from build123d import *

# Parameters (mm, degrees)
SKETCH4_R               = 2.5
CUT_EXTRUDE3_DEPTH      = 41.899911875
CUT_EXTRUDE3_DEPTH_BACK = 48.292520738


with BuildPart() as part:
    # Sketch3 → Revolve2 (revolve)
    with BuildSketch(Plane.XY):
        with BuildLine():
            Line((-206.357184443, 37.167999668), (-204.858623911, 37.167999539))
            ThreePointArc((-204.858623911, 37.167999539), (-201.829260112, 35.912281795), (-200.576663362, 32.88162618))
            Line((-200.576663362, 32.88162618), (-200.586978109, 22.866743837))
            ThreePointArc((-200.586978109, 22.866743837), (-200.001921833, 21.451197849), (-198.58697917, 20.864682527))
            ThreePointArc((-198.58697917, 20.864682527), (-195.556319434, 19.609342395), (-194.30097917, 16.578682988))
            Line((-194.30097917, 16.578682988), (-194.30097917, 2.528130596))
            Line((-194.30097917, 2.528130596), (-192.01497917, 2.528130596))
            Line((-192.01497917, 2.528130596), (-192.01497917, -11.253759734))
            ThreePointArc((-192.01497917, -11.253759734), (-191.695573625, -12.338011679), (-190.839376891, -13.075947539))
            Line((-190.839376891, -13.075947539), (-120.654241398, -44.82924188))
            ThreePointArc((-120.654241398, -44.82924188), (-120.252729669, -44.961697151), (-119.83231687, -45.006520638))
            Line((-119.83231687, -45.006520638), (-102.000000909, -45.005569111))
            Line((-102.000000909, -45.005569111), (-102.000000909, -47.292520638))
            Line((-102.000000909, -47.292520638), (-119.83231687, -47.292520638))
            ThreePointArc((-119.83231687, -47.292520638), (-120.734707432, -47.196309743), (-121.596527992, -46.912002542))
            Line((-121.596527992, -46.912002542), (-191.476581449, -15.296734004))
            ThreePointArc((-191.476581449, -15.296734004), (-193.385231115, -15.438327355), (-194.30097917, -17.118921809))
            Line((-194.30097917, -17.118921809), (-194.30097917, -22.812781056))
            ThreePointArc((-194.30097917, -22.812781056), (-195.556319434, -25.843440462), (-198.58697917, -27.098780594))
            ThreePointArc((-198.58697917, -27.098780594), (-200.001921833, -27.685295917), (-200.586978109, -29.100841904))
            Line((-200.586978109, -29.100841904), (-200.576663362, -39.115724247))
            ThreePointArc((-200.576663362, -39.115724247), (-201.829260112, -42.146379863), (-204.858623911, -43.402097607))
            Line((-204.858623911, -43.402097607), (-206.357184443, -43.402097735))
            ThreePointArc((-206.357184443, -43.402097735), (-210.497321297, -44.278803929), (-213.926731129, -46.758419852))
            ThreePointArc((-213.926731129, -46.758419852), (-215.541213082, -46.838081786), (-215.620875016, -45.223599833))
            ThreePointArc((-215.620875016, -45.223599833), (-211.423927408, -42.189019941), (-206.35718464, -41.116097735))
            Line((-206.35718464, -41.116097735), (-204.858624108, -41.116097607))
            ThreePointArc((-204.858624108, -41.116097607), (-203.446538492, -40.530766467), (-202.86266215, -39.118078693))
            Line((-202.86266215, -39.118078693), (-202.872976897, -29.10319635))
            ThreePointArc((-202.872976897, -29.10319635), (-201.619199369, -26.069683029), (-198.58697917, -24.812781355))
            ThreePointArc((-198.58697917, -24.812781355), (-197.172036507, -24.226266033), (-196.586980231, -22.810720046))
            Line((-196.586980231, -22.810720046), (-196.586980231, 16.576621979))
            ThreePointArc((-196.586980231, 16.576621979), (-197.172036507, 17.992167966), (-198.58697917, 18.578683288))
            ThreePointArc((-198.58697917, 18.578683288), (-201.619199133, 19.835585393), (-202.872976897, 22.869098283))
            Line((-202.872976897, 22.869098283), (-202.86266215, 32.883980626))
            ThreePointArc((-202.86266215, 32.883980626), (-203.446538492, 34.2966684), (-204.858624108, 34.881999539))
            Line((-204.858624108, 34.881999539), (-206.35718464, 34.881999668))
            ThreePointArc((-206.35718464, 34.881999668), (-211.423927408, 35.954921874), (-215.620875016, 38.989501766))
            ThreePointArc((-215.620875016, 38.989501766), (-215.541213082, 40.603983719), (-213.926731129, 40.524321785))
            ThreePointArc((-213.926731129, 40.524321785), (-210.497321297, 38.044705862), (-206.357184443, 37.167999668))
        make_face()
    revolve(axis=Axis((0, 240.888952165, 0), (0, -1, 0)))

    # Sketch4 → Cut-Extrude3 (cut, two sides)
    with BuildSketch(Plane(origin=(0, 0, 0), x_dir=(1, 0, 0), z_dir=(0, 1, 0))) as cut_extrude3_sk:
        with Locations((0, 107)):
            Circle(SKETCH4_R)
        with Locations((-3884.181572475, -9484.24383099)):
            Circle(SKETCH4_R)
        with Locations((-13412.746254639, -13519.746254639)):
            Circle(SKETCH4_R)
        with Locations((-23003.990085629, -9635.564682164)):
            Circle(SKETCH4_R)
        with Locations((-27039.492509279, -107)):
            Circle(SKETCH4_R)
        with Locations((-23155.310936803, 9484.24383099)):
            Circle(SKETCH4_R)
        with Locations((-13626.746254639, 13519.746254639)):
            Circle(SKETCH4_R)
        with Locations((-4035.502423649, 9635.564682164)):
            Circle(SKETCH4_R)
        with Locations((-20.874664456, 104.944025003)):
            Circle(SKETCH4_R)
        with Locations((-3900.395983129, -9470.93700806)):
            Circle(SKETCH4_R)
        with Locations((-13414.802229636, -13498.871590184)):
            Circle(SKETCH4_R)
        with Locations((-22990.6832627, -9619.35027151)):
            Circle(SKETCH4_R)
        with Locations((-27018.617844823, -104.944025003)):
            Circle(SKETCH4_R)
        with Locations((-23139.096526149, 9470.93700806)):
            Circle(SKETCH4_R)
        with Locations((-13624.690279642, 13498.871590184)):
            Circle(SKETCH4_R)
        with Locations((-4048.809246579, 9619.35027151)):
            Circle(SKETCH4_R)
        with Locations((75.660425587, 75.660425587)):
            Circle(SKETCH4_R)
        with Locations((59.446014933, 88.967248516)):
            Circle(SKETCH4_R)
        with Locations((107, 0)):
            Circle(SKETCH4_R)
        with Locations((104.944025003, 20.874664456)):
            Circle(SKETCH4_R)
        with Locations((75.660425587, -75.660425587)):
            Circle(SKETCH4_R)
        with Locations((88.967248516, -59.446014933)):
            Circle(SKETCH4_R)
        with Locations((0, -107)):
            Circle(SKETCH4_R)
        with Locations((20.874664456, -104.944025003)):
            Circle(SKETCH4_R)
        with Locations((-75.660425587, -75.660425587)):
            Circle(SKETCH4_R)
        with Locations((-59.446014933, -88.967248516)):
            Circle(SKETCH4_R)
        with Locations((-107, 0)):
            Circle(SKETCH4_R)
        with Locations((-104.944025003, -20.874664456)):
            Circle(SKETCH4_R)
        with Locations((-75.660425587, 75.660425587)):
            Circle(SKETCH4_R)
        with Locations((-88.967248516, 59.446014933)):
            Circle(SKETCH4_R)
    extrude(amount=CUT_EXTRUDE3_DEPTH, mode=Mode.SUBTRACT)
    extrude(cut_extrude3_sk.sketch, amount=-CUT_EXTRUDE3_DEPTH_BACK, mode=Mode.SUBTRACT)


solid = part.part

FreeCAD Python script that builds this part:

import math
import FreeCAD as App
import Part
import Sketcher

doc = App.newDocument("Part")
params = doc.addObject("Spreadsheet::Sheet", "Params")
for row, (alias, value) in enumerate([
    ("sketch1_radius", "1.999999 mm"),
    ("sketch1_radius2", "1.999999 mm"),
    ("sketch1_radius3", "1.999999 mm"),
    ("sketch1_radius4", "2 mm"),
    ("sketch1_radius5", "2 mm"),
    ("revolution_angle", "360 deg"),
    ("sketch2_diameter", "5 mm"),
], start=1):
    params.set(f"A{row}", alias)
    params.set(f"B{row}", "=" + value)
    params.setAlias(f"B{row}", alias)

body = doc.addObject("PartDesign::Body", "Body")

# Sketch on XY plane
sketch1 = body.newObject("Sketcher::SketchObject", "Sketch")
sketch1.AttachmentSupport = (doc.getObject("XY_Plane"), [""])
sketch1.MapMode = "FlatFace"
sketch1.addGeometry(Part.LineSegment(App.Vector(-204.858624, 37.168, 0), App.Vector(-206.357184, 37.168, 0)), False)
sketch1.addGeometry(Part.ArcOfCircle(Part.Circle(App.Vector(-206.357184, 47.382, 0), App.Vector(0, 0, 1), 10.214), math.radians(-137.824803), math.radians(-90.000005)), False)
sketch1.addGeometry(Part.ArcOfCircle(Part.Circle(App.Vector(-214.773803, 39.756912, 0), App.Vector(0, 0, 1), 1.143), math.radians(42.175197), math.radians(222.175197)), False)
sketch1.addGeometry(Part.ArcOfCircle(Part.Circle(App.Vector(-206.357184, 47.382, 0), App.Vector(0, 0, 1), 12.5), math.radians(-137.824803), math.radians(-90.000005)), False)
sketch1.addGeometry(Part.LineSegment(App.Vector(-206.357185, 34.882, 0), App.Vector(-204.858624, 34.882, 0)), False)
sketch1.addGeometry(Part.ArcOfCircle(Part.Circle(App.Vector(-204.858624, 32.886036, 0), App.Vector(0, 0, 1), 1.995963), math.radians(-0.059011), math.radians(89.999995)), False)
sketch1.addGeometry(Part.LineSegment(App.Vector(-202.862662, 32.883981, 0), App.Vector(-202.872977, 22.869098, 0)), False)
sketch1.addGeometry(Part.ArcOfCircle(Part.Circle(App.Vector(-198.586978, 22.864684, 0), App.Vector(0, 0, 1), 4.286001), math.radians(179.940995), math.radians(269.999985)), False)
sketch1.addGeometry(Part.ArcOfCircle(Part.Circle(App.Vector(-198.586978, 16.578684, 0), App.Vector(0, 0, 1), 1.999999), math.radians(-0.059081), math.radians(90.000029)), False)
sketch1.addGeometry(Part.LineSegment(App.Vector(-196.58698, 16.576622, 0), App.Vector(-196.58698, -22.81072, 0)), False)
sketch1.addGeometry(Part.ArcOfCircle(Part.Circle(App.Vector(-198.586978, -22.812782, 0), App.Vector(0, 0, 1), 1.999999), math.radians(-90.000029), math.radians(0.059081)), False)
sketch1.addGeometry(Part.ArcOfCircle(Part.Circle(App.Vector(-198.586979, -29.098781, 0), App.Vector(0, 0, 1), 4.286), math.radians(90), math.radians(180.05902)), False)
sketch1.addGeometry(Part.LineSegment(App.Vector(-202.872977, -29.103196, 0), App.Vector(-202.862662, -39.118079, 0)), False)
sketch1.addGeometry(Part.ArcOfCircle(Part.Circle(App.Vector(-204.858624, -39.120134, 0), App.Vector(0, 0, 1), 1.995963), math.radians(-89.999995), math.radians(0.059011)), False)
sketch1.addGeometry(Part.LineSegment(App.Vector(-204.858624, -41.116098, 0), App.Vector(-206.357185, -41.116098, 0)), False)
sketch1.addGeometry(Part.ArcOfCircle(Part.Circle(App.Vector(-206.357184, -53.616098, 0), App.Vector(0, 0, 1), 12.5), math.radians(90.000005), math.radians(137.824803)), False)
sketch1.addGeometry(Part.ArcOfCircle(Part.Circle(App.Vector(-214.773803, -45.99101, 0), App.Vector(0, 0, 1), 1.143), math.radians(137.824803), math.radians(317.824803)), False)
sketch1.addGeometry(Part.ArcOfCircle(Part.Circle(App.Vector(-206.357184, -53.616098, 0), App.Vector(0, 0, 1), 10.214), math.radians(90.000005), math.radians(137.824803)), False)
sketch1.addGeometry(Part.LineSegment(App.Vector(-206.357184, -43.402098, 0), App.Vector(-204.858624, -43.402098, 0)), False)
sketch1.addGeometry(Part.ArcOfCircle(Part.Circle(App.Vector(-204.858624, -39.120134, 0), App.Vector(0, 0, 1), 4.281963), math.radians(-89.999995), math.radians(0.059011)), False)
sketch1.addGeometry(Part.LineSegment(App.Vector(-200.576663, -39.115724, 0), App.Vector(-200.586978, -29.100842, 0)), False)
sketch1.addGeometry(Part.ArcOfCircle(Part.Circle(App.Vector(-198.58698, -29.09878, 0), App.Vector(0, 0, 1), 1.999999), math.radians(89.999971), math.radians(180.059081)), False)
sketch1.addGeometry(Part.ArcOfCircle(Part.Circle(App.Vector(-198.586979, -22.812781, 0), App.Vector(0, 0, 1), 4.286), math.radians(-90.000006), math.radians(0)), False)
sketch1.addGeometry(Part.LineSegment(App.Vector(-194.300979, -22.812781, 0), App.Vector(-194.300979, -17.118922, 0)), False)
sketch1.addGeometry(Part.ArcOfCircle(Part.Circle(App.Vector(-192.300979, -17.118922, 0), App.Vector(0, 0, 1), 2), math.radians(65.656961), math.radians(180)), False)
sketch1.addGeometry(Part.LineSegment(App.Vector(-191.476581, -15.296734, 0), App.Vector(-121.596528, -46.912003, 0)), False)
sketch1.addGeometry(Part.ArcOfCircle(Part.Circle(App.Vector(-119.832317, -43.012521, 0), App.Vector(0, 0, 1), 4.28), math.radians(-114.343039), math.radians(-90)), False)
sketch1.addGeometry(Part.LineSegment(App.Vector(-119.832317, -47.292521, 0), App.Vector(-102.000001, -47.292521, 0)), False)
sketch1.addGeometry(Part.LineSegment(App.Vector(-102.000001, -47.292521, 0), App.Vector(-102.000001, -45.005569, 0)), False)
sketch1.addGeometry(Part.LineSegment(App.Vector(-102.000001, -45.005569, 0), App.Vector(-119.832317, -45.006521, 0)), False)
sketch1.addGeometry(Part.ArcOfCircle(Part.Circle(App.Vector(-119.832317, -43.012521, 0), App.Vector(0, 0, 1), 1.994), math.radians(-114.343039), math.radians(-90)), False)
sketch1.addGeometry(Part.LineSegment(App.Vector(-120.654241, -44.829242, 0), App.Vector(-190.839377, -13.075948, 0)), False)
sketch1.addGeometry(Part.ArcOfCircle(Part.Circle(App.Vector(-190.014979, -11.25376, 0), App.Vector(0, 0, 1), 2), math.radians(180), math.radians(245.656961)), False)
sketch1.addGeometry(Part.LineSegment(App.Vector(-192.014979, -11.25376, 0), App.Vector(-192.014979, 2.528131, 0)), False)
sketch1.addGeometry(Part.LineSegment(App.Vector(-192.014979, 2.528131, 0), App.Vector(-194.300979, 2.528131, 0)), False)
sketch1.addGeometry(Part.LineSegment(App.Vector(-194.300979, 2.528131, 0), App.Vector(-194.300979, 16.578683, 0)), False)
sketch1.addGeometry(Part.ArcOfCircle(Part.Circle(App.Vector(-198.586979, 16.578683, 0), App.Vector(0, 0, 1), 4.286), math.radians(0), math.radians(90.000006)), False)
sketch1.addGeometry(Part.ArcOfCircle(Part.Circle(App.Vector(-198.58698, 22.864682, 0), App.Vector(0, 0, 1), 1.999999), math.radians(179.940919), math.radians(270.000029)), False)
sketch1.addGeometry(Part.LineSegment(App.Vector(-200.586978, 22.866744, 0), App.Vector(-200.576663, 32.881626, 0)), False)
sketch1.addGeometry(Part.ArcOfCircle(Part.Circle(App.Vector(-204.858624, 32.886036, 0), App.Vector(0, 0, 1), 4.281963), math.radians(-0.059011), math.radians(89.999995)), False)
sketch1.addConstraint(Sketcher.Constraint("Coincident", 0, 2, 1, 2))
sketch1.addConstraint(Sketcher.Constraint("Coincident", 1, 1, 2, 1))
sketch1.addConstraint(Sketcher.Constraint("Coincident", 2, 2, 3, 1))
sketch1.addConstraint(Sketcher.Constraint("Coincident", 3, 2, 4, 1))
sketch1.addConstraint(Sketcher.Constraint("Coincident", 4, 2, 5, 2))
sketch1.addConstraint(Sketcher.Constraint("Coincident", 5, 1, 6, 1))
sketch1.addConstraint(Sketcher.Constraint("Coincident", 6, 2, 7, 1))
sketch1.addConstraint(Sketcher.Constraint("Coincident", 7, 2, 8, 2))
sketch1.addConstraint(Sketcher.Constraint("Coincident", 8, 1, 9, 1))
sketch1.addConstraint(Sketcher.Constraint("Coincident", 9, 2, 10, 2))
sketch1.addConstraint(Sketcher.Constraint("Coincident", 10, 1, 11, 1))
sketch1.addConstraint(Sketcher.Constraint("Coincident", 11, 2, 12, 1))
sketch1.addConstraint(Sketcher.Constraint("Coincident", 12, 2, 13, 2))
sketch1.addConstraint(Sketcher.Constraint("Coincident", 13, 1, 14, 1))
sketch1.addConstraint(Sketcher.Constraint("Coincident", 14, 2, 15, 1))
sketch1.addConstraint(Sketcher.Constraint("Coincident", 15, 2, 16, 1))
sketch1.addConstraint(Sketcher.Constraint("Coincident", 16, 2, 17, 2))
sketch1.addConstraint(Sketcher.Constraint("Coincident", 17, 1, 18, 1))
sketch1.addConstraint(Sketcher.Constraint("Coincident", 18, 2, 19, 1))
sketch1.addConstraint(Sketcher.Constraint("Coincident", 19, 2, 20, 1))
sketch1.addConstraint(Sketcher.Constraint("Coincident", 20, 2, 21, 2))
sketch1.addConstraint(Sketcher.Constraint("Coincident", 21, 1, 22, 1))
sketch1.addConstraint(Sketcher.Constraint("Coincident", 22, 2, 23, 1))
sketch1.addConstraint(Sketcher.Constraint("Coincident", 23, 2, 24, 2))
sketch1.addConstraint(Sketcher.Constraint("Coincident", 24, 1, 25, 1))
sketch1.addConstraint(Sketcher.Constraint("Coincident", 25, 2, 26, 1))
sketch1.addConstraint(Sketcher.Constraint("Coincident", 26, 2, 27, 1))
sketch1.addConstraint(Sketcher.Constraint("Coincident", 27, 2, 28, 1))
sketch1.addConstraint(Sketcher.Constraint("Coincident", 28, 2, 29, 1))
sketch1.addConstraint(Sketcher.Constraint("Coincident", 29, 2, 30, 2))
sketch1.addConstraint(Sketcher.Constraint("Coincident", 30, 1, 31, 1))
sketch1.addConstraint(Sketcher.Constraint("Coincident", 31, 2, 32, 2))
sketch1.addConstraint(Sketcher.Constraint("Coincident", 32, 1, 33, 1))
sketch1.addConstraint(Sketcher.Constraint("Coincident", 33, 2, 34, 1))
sketch1.addConstraint(Sketcher.Constraint("Coincident", 34, 2, 35, 1))
sketch1.addConstraint(Sketcher.Constraint("Coincident", 35, 2, 36, 1))
sketch1.addConstraint(Sketcher.Constraint("Coincident", 36, 2, 37, 2))
sketch1.addConstraint(Sketcher.Constraint("Coincident", 37, 1, 38, 1))
sketch1.addConstraint(Sketcher.Constraint("Coincident", 38, 2, 39, 1))
sketch1.addConstraint(Sketcher.Constraint("Coincident", 39, 2, 0, 1))
sketch1.addConstraint(Sketcher.Constraint("Horizontal", 0))
sketch1.addConstraint(Sketcher.Constraint("Horizontal", 4))
sketch1.addConstraint(Sketcher.Constraint("Vertical", 9))
sketch1.addConstraint(Sketcher.Constraint("Horizontal", 14))
sketch1.addConstraint(Sketcher.Constraint("Horizontal", 18))
sketch1.addConstraint(Sketcher.Constraint("Vertical", 23))
sketch1.addConstraint(Sketcher.Constraint("Horizontal", 27))
sketch1.addConstraint(Sketcher.Constraint("Vertical", 28))
sketch1.addConstraint(Sketcher.Constraint("Vertical", 33))
sketch1.addConstraint(Sketcher.Constraint("Horizontal", 34))
sketch1.addConstraint(Sketcher.Constraint("Vertical", 35))
sketch1.addConstraint(Sketcher.Constraint("Coincident", 3, 3, 1, 3))
sketch1.addConstraint(Sketcher.Constraint("Coincident", 17, 3, 15, 3))
sketch1.addConstraint(Sketcher.Constraint("Coincident", 19, 3, 13, 3))
sketch1.addConstraint(Sketcher.Constraint("Coincident", 21, 3, 11, 3))
sketch1.addConstraint(Sketcher.Constraint("Coincident", 22, 3, 10, 3))
sketch1.addConstraint(Sketcher.Constraint("Coincident", 30, 3, 26, 3))
sketch1.addConstraint(Sketcher.Constraint("Coincident", 36, 3, 8, 3))
sketch1.addConstraint(Sketcher.Constraint("Coincident", 37, 3, 7, 3))
sketch1.addConstraint(Sketcher.Constraint("Coincident", 39, 3, 5, 3))
sketch1.addConstraint(Sketcher.Constraint("Radius", 8, 1.999999))
sketch1.addConstraint(Sketcher.Constraint("Radius", 10, 1.999999))
sketch1.addConstraint(Sketcher.Constraint("Radius", 21, 1.999999))
sketch1.addConstraint(Sketcher.Constraint("Radius", 24, 2.0))
sketch1.addConstraint(Sketcher.Constraint("Radius", 32, 2.0))
sketch1.addConstraint(Sketcher.Constraint("Radius", 37, 1.999999))
sketch1.addConstraint(Sketcher.Constraint("Radius", 3, 12.5))
sketch1.addConstraint(Sketcher.Constraint("Radius", 15, 12.5))
sketch1.addConstraint(Sketcher.Constraint("Radius", 26, 4.28))
sketch1.addConstraint(Sketcher.Constraint("DistanceX", 27, 2, -1, 1, 102.000001))
sketch1.addConstraint(Sketcher.Constraint("Radius", 1, 10.214))
sketch1.addConstraint(Sketcher.Constraint("Radius", 7, 4.286001))
sketch1.addConstraint(Sketcher.Constraint("Radius", 11, 4.286))
sketch1.addConstraint(Sketcher.Constraint("Radius", 16, 1.143))
sketch1.addConstraint(Sketcher.Constraint("Radius", 30, 1.994))
sketch1.addConstraint(Sketcher.Constraint("DistanceX", 34, 2, 34, 1, 2.286))
sketch1.addConstraint(Sketcher.Constraint("DistanceY", -1, 1, 1, 3, 47.382))
sketch1.addConstraint(Sketcher.Constraint("Radius", 5, 1.995963))
sketch1.addConstraint(Sketcher.Constraint("Radius", 13, 1.995963))
sketch1.addConstraint(Sketcher.Constraint("DistanceX", 0, 2, 0, 1, 1.498561))
sketch1.addConstraint(Sketcher.Constraint("DistanceX", 4, 1, 4, 2, 1.498561))
sketch1.addConstraint(Sketcher.Constraint("DistanceX", 14, 2, 14, 1, 1.498561))
sketch1.addConstraint(Sketcher.Constraint("DistanceX", 18, 1, 18, 2, 1.498561))
sketch1.addConstraint(Sketcher.Constraint("DistanceY", 23, 1, 23, 2, 5.693859))
sketch1.addConstraint(Sketcher.Constraint("DistanceY", 28, 1, 28, 2, 2.286952))
sketch1.addConstraint(Sketcher.Constraint("DistanceY", 33, 1, 33, 2, 13.78189))
sketch1.addConstraint(Sketcher.Constraint("DistanceY", -1, 1, 2, 2, 38.989502))
sketch1.addConstraint(Sketcher.Constraint("DistanceY", -1, 1, 6, 2, 22.869098))
sketch1.addConstraint(Sketcher.Constraint("DistanceY", 15, 2, -1, 1, 45.2236))
sketch1.addConstraint(Sketcher.Constraint("Distance", 25, 76.699068))
sketch1.addConstraint(Sketcher.Constraint("Distance", 31, 77.033921))
sketch1.addConstraint(Sketcher.Constraint("DistanceX", 27, 1, 27, 2, 17.832316))
sketch1.addConstraint(Sketcher.Constraint("DistanceY", 9, 2, 9, 1, 39.387342))
sketch1.addConstraint(Sketcher.Constraint("DistanceY", 35, 1, 35, 2, 14.050552))
sketch1.addConstraint(Sketcher.Constraint("DistanceY", -1, 1, 2, 3, 39.756912))
sketch1.addConstraint(Sketcher.Constraint("DistanceX", 7, 3, -1, 1, 198.586978))
sketch1.addConstraint(Sketcher.Constraint("DistanceX", 8, 3, -1, 1, 198.586978))
sketch1.addConstraint(Sketcher.Constraint("DistanceX", 11, 3, -1, 1, 198.586979))
sketch1.addConstraint(Sketcher.Constraint("DistanceY", 11, 3, -1, 1, 29.098781))
sketch1.addConstraint(Sketcher.Constraint("DistanceY", 16, 3, -1, 1, 45.99101))
sketch1.addConstraint(Sketcher.Constraint("DistanceY", 24, 3, -1, 1, 17.118922))
sketch1.addConstraint(Sketcher.Constraint("DistanceY", 26, 3, -1, 1, 43.012521))
sketch1.addConstraint(Sketcher.Constraint("DistanceY", 32, 3, -1, 1, 11.25376))
sketch1.addConstraint(Sketcher.Constraint("DistanceY", -1, 1, 37, 3, 22.864682))
sketch1.addConstraint(Sketcher.Constraint("DistanceX", 1, 1, -1, 1, 213.926731))
sketch1.addConstraint(Sketcher.Constraint("DistanceY", -1, 1, 1, 1, 40.524322))
sketch1.addConstraint(Sketcher.Constraint("DistanceY", -1, 1, 5, 1, 32.883981))
sketch1.addConstraint(Sketcher.Constraint("DistanceX", 7, 2, -1, 1, 198.586979))
sketch1.addConstraint(Sketcher.Constraint("DistanceY", -1, 1, 8, 1, 16.576622))
sketch1.addConstraint(Sketcher.Constraint("DistanceX", 10, 1, -1, 1, 198.586979))
sketch1.addConstraint(Sketcher.Constraint("DistanceY", 12, 2, -1, 1, 39.118079))
sketch1.addConstraint(Sketcher.Constraint("DistanceX", 16, 2, -1, 1, 213.926731))
sketch1.addConstraint(Sketcher.Constraint("DistanceY", 16, 2, -1, 1, 46.75842))
sketch1.addConstraint(Sketcher.Constraint("DistanceY", 20, 2, -1, 1, 29.100842))
sketch1.addConstraint(Sketcher.Constraint("DistanceX", 21, 1, -1, 1, 198.586979))
sketch1.addConstraint(Sketcher.Constraint("DistanceY", 22, 2, -1, 1, 22.812781))
sketch1.addConstraint(Sketcher.Constraint("DistanceX", 24, 1, -1, 1, 191.476581))
sketch1.addConstraint(Sketcher.Constraint("DistanceX", 30, 1, -1, 1, 120.654241))
sketch1.addConstraint(Sketcher.Constraint("DistanceY", 30, 1, -1, 1, 44.829242))
sketch1.addConstraint(Sketcher.Constraint("DistanceY", 32, 1, -1, 1, 11.25376))
sketch1.addConstraint(Sketcher.Constraint("DistanceX", 36, 2, -1, 1, 198.586979))
sketch1.addConstraint(Sketcher.Constraint("Distance", 12, 10.014888))
sketch1.addConstraint(Sketcher.Constraint("Distance", 20, 10.014888))
sketch1.addConstraint(Sketcher.Constraint("Distance", 29, 17.832316))
sketch1.addConstraint(Sketcher.Constraint("Distance", 38, 10.014888))
sketch1.addConstraint(Sketcher.Constraint("DistanceX", 5, 3, -1, 1, 204.858624))
sketch1.addConstraint(Sketcher.Constraint("DistanceX", 13, 3, -1, 1, 204.858624))
sketch1.addConstraint(Sketcher.Constraint("DistanceY", 13, 3, -1, 1, 39.120134))
sketch1.addConstraint(Sketcher.Constraint("DistanceX", 0, 2, -1, 1, 206.357184))
sketch1.addConstraint(Sketcher.Constraint("DistanceX", 3, 2, -1, 1, 206.357185))
sketch1.addConstraint(Sketcher.Constraint("DistanceX", 13, 1, -1, 1, 204.858624))
sketch1.addConstraint(Sketcher.Constraint("DistanceX", 17, 1, -1, 1, 206.357184))
sketch1.addConstraint(Sketcher.Constraint("DistanceY", -1, 1, 37, 1, 22.866744))
sketch1.setExpression("Constraints[60]", "Params.sketch1_radius")
sketch1.setExpression("Constraints[61]", "Params.sketch1_radius2")
sketch1.setExpression("Constraints[62]", "Params.sketch1_radius3")
sketch1.setExpression("Constraints[63]", "Params.sketch1_radius4")
sketch1.setExpression("Constraints[64]", "Params.sketch1_radius5")
revolution = body.newObject("PartDesign::Revolution", "Revolution")
revolution.Profile = sketch1
revolution.ReferenceAxis = (sketch1, ["V_Axis"])
revolution.setExpression("Angle", "Params.revolution_angle")

# Sketch on XZ plane
sketch2 = body.newObject("Sketcher::SketchObject", "Sketch001")
sketch2.AttachmentSupport = (doc.getObject("XZ_Plane"), [""])
sketch2.MapMode = "FlatFace"
sketch2.addGeometry(Part.Circle(App.Vector(0, -107, 0), App.Vector(0, 0, 1), 2.5), False)
sketch2.addGeometry(Part.Circle(App.Vector(-3884.2, 9484.2, 0), App.Vector(0, 0, 1), 2.5), False)
sketch2.addGeometry(Part.Circle(App.Vector(-13412.7, 13519.7, 0), App.Vector(0, 0, 1), 2.5), False)
sketch2.addGeometry(Part.Circle(App.Vector(-23004, 9635.6, 0), App.Vector(0, 0, 1), 2.5), False)
sketch2.addGeometry(Part.Circle(App.Vector(-27039.5, 107, 0), App.Vector(0, 0, 1), 2.5), False)
sketch2.addGeometry(Part.Circle(App.Vector(-23155.3, -9484.2, 0), App.Vector(0, 0, 1), 2.5), False)
sketch2.addGeometry(Part.Circle(App.Vector(-13626.7, -13519.7, 0), App.Vector(0, 0, 1), 2.5), False)
sketch2.addGeometry(Part.Circle(App.Vector(-4035.5, -9635.6, 0), App.Vector(0, 0, 1), 2.5), False)
sketch2.addGeometry(Part.Circle(App.Vector(-20.9, -104.9, 0), App.Vector(0, 0, 1), 2.5), False)
sketch2.addGeometry(Part.Circle(App.Vector(-3900.4, 9470.9, 0), App.Vector(0, 0, 1), 2.5), False)
sketch2.addGeometry(Part.Circle(App.Vector(-13414.8, 13498.9, 0), App.Vector(0, 0, 1), 2.5), False)
sketch2.addGeometry(Part.Circle(App.Vector(-22990.7, 9619.4, 0), App.Vector(0, 0, 1), 2.5), False)
sketch2.addGeometry(Part.Circle(App.Vector(-27018.6, 104.9, 0), App.Vector(0, 0, 1), 2.5), False)
sketch2.addGeometry(Part.Circle(App.Vector(-23139.1, -9470.9, 0), App.Vector(0, 0, 1), 2.5), False)
sketch2.addGeometry(Part.Circle(App.Vector(-13624.7, -13498.9, 0), App.Vector(0, 0, 1), 2.5), False)
sketch2.addGeometry(Part.Circle(App.Vector(-4048.8, -9619.4, 0), App.Vector(0, 0, 1), 2.5), False)
sketch2.addGeometry(Part.Circle(App.Vector(75.7, -75.7, 0), App.Vector(0, 0, 1), 2.5), False)
sketch2.addGeometry(Part.Circle(App.Vector(59.4, -89, 0), App.Vector(0, 0, 1), 2.5), False)
sketch2.addGeometry(Part.Circle(App.Vector(107, 0, 0), App.Vector(0, 0, 1), 2.5), False)
sketch2.addGeometry(Part.Circle(App.Vector(104.9, -20.9, 0), App.Vector(0, 0, 1), 2.5), False)
sketch2.addGeometry(Part.Circle(App.Vector(75.7, 75.7, 0), App.Vector(0, 0, 1), 2.5), False)
sketch2.addGeometry(Part.Circle(App.Vector(89, 59.4, 0), App.Vector(0, 0, 1), 2.5), False)
sketch2.addGeometry(Part.Circle(App.Vector(0, 107, 0), App.Vector(0, 0, 1), 2.5), False)
sketch2.addGeometry(Part.Circle(App.Vector(20.9, 104.9, 0), App.Vector(0, 0, 1), 2.5), False)
sketch2.addGeometry(Part.Circle(App.Vector(-75.7, 75.7, 0), App.Vector(0, 0, 1), 2.5), False)
sketch2.addGeometry(Part.Circle(App.Vector(-59.4, 89, 0), App.Vector(0, 0, 1), 2.5), False)
sketch2.addGeometry(Part.Circle(App.Vector(-107, 0, 0), App.Vector(0, 0, 1), 2.5), False)
sketch2.addGeometry(Part.Circle(App.Vector(-104.9, 20.9, 0), App.Vector(0, 0, 1), 2.5), False)
sketch2.addGeometry(Part.Circle(App.Vector(-75.7, -75.7, 0), App.Vector(0, 0, 1), 2.5), False)
sketch2.addGeometry(Part.Circle(App.Vector(-89, -59.4, 0), App.Vector(0, 0, 1), 2.5), False)
sketch2.addConstraint(Sketcher.Constraint("Equal", 0, 1))
sketch2.addConstraint(Sketcher.Constraint("Equal", 1, 2))
sketch2.addConstraint(Sketcher.Constraint("Equal", 2, 3))
sketch2.addConstraint(Sketcher.Constraint("Equal", 3, 4))
sketch2.addConstraint(Sketcher.Constraint("Equal", 4, 5))
sketch2.addConstraint(Sketcher.Constraint("Equal", 5, 6))
sketch2.addConstraint(Sketcher.Constraint("Equal", 6, 7))
sketch2.addConstraint(Sketcher.Constraint("Equal", 7, 8))
sketch2.addConstraint(Sketcher.Constraint("Equal", 8, 9))
sketch2.addConstraint(Sketcher.Constraint("Equal", 9, 10))
sketch2.addConstraint(Sketcher.Constraint("Equal", 10, 11))
sketch2.addConstraint(Sketcher.Constraint("Equal", 11, 12))
sketch2.addConstraint(Sketcher.Constraint("Equal", 12, 13))
sketch2.addConstraint(Sketcher.Constraint("Equal", 13, 14))
sketch2.addConstraint(Sketcher.Constraint("Equal", 14, 15))
sketch2.addConstraint(Sketcher.Constraint("Equal", 15, 16))
sketch2.addConstraint(Sketcher.Constraint("Equal", 16, 17))
sketch2.addConstraint(Sketcher.Constraint("Equal", 17, 18))
sketch2.addConstraint(Sketcher.Constraint("Equal", 18, 19))
sketch2.addConstraint(Sketcher.Constraint("Equal", 19, 20))
sketch2.addConstraint(Sketcher.Constraint("Equal", 20, 21))
sketch2.addConstraint(Sketcher.Constraint("Equal", 21, 22))
sketch2.addConstraint(Sketcher.Constraint("Equal", 22, 23))
sketch2.addConstraint(Sketcher.Constraint("Equal", 23, 24))
sketch2.addConstraint(Sketcher.Constraint("Equal", 24, 25))
sketch2.addConstraint(Sketcher.Constraint("Equal", 25, 26))
sketch2.addConstraint(Sketcher.Constraint("Equal", 26, 27))
sketch2.addConstraint(Sketcher.Constraint("Equal", 27, 28))
sketch2.addConstraint(Sketcher.Constraint("Equal", 28, 29))
sketch2.addConstraint(Sketcher.Constraint("Symmetric", 0, 3, 22, 3, -1, 1))
sketch2.addConstraint(Sketcher.Constraint("Symmetric", 8, 3, 23, 3, -1, 1))
sketch2.addConstraint(Sketcher.Constraint("Symmetric", 16, 3, 24, 3, -1, 1))
sketch2.addConstraint(Sketcher.Constraint("Symmetric", 17, 3, 25, 3, -1, 1))
sketch2.addConstraint(Sketcher.Constraint("Symmetric", 18, 3, 26, 3, -1, 1))
sketch2.addConstraint(Sketcher.Constraint("Symmetric", 19, 3, 27, 3, -1, 1))
sketch2.addConstraint(Sketcher.Constraint("Symmetric", 20, 3, 28, 3, -1, 1))
sketch2.addConstraint(Sketcher.Constraint("Symmetric", 21, 3, 29, 3, -1, 1))
sketch2.addConstraint(Sketcher.Constraint("Symmetric", 20, 3, 24, 3, -2))
sketch2.addConstraint(Sketcher.Constraint("PointOnObject", 0, 3, -2))
sketch2.addConstraint(Sketcher.Constraint("PointOnObject", 18, 3, -1))
sketch2.addConstraint(Sketcher.Constraint("Horizontal", 4, 3, 22, 3))
sketch2.addConstraint(Sketcher.Constraint("Horizontal", 12, 3, 23, 3))
sketch2.addConstraint(Sketcher.Constraint("Diameter", 0, 5.0))
sketch2.addConstraint(Sketcher.Constraint("DistanceY", 0, 3, -1, 1, 107.0))
sketch2.addConstraint(Sketcher.Constraint("DistanceX", -1, 1, 18, 3, 107.0))
sketch2.addConstraint(Sketcher.Constraint("DistanceX", 1, 3, 16, 3, 3959.841998))
sketch2.addConstraint(Sketcher.Constraint("DistanceX", 9, 3, 17, 3, 3959.841998))
sketch2.addConstraint(Sketcher.Constraint("DistanceY", 8, 3, 16, 3, 29.283599))
sketch2.addConstraint(Sketcher.Constraint("DistanceX", 16, 3, 19, 3, 29.283599))
sketch2.addConstraint(Sketcher.Constraint("DistanceY", -1, 1, 1, 3, 9484.243831))
sketch2.addConstraint(Sketcher.Constraint("DistanceX", 4, 3, -1, 1, 27039.492509))
sketch2.addConstraint(Sketcher.Constraint("DistanceY", 5, 3, -1, 1, 9484.243831))
sketch2.addConstraint(Sketcher.Constraint("DistanceY", -1, 1, 9, 3, 9470.937008))
sketch2.addConstraint(Sketcher.Constraint("DistanceX", 10, 3, -1, 1, 13414.80223))
sketch2.addConstraint(Sketcher.Constraint("DistanceY", -1, 1, 10, 3, 13498.87159))
sketch2.addConstraint(Sketcher.Constraint("DistanceY", -1, 1, 11, 3, 9619.350272))
sketch2.addConstraint(Sketcher.Constraint("DistanceY", 13, 3, -1, 1, 9470.937008))
sketch2.addConstraint(Sketcher.Constraint("DistanceX", 14, 3, -1, 1, 13624.69028))
sketch2.addConstraint(Sketcher.Constraint("DistanceY", 14, 3, -1, 1, 13498.87159))
sketch2.addConstraint(Sketcher.Constraint("DistanceY", 15, 3, -1, 1, 9619.350272))
sketch2.addConstraint(Sketcher.Constraint("DistanceY", 17, 3, -1, 1, 88.967249))
sketch2.addConstraint(Sketcher.Constraint("DistanceX", -1, 1, 21, 3, 88.967249))
sketch2.addConstraint(Sketcher.Constraint("DistanceX", 3, 3, 2, 3, 9591.243831))
sketch2.addConstraint(Sketcher.Constraint("DistanceY", 1, 3, 3, 3, 151.320851))
sketch2.addConstraint(Sketcher.Constraint("DistanceX", 5, 3, 3, 3, 151.320851))
sketch2.addConstraint(Sketcher.Constraint("DistanceX", 3, 3, 6, 3, 9377.243831))
sketch2.addConstraint(Sketcher.Constraint("DistanceX", 6, 3, 7, 3, 9591.243831))
sketch2.addConstraint(Sketcher.Constraint("DistanceX", 7, 3, 1, 3, 151.320851))
sketch2.addConstraint(Sketcher.Constraint("DistanceY", 7, 3, 5, 3, 151.320851))
sketch2.addConstraint(Sketcher.Constraint("DistanceX", 1, 3, 8, 3, 3863.306908))
sketch2.addConstraint(Sketcher.Constraint("DistanceY", 8, 3, 2, 3, 13624.69028))
sketch2.addConstraint(Sketcher.Constraint("DistanceY", 6, 3, 8, 3, 13414.80223))
sketch2.addConstraint(Sketcher.Constraint("DistanceX", 9, 3, 1, 3, 16.214411))
sketch2.addConstraint(Sketcher.Constraint("DistanceX", 11, 3, 2, 3, 9577.937008))
sketch2.addConstraint(Sketcher.Constraint("DistanceX", 12, 3, 5, 3, 3863.306908))
sketch2.addConstraint(Sketcher.Constraint("DistanceX", 5, 3, 13, 3, 16.214411))
sketch2.addConstraint(Sketcher.Constraint("DistanceX", 6, 3, 15, 3, 9577.937008))
sketch2.addConstraint(Sketcher.Constraint("DistanceY", 16, 3, 19, 3, 54.785761))
sketch2.addConstraint(Sketcher.Constraint("DistanceY", 19, 3, 20, 3, 96.53509))
sketch2.addConstraint(Sketcher.Constraint("DistanceY", 21, 3, 20, 3, 16.214411))
sketch2.addConstraint(Sketcher.Constraint("DistanceX", 23, 3, 20, 3, 54.785761))
sketch2.setExpression("Constraints[42]", "Params.sketch2_diameter")
pocket1 = body.newObject("PartDesign::Pocket", "Pocket")
pocket1.Profile = sketch2
pocket1.Type = "ThroughAll"
pocket1.Midplane = True

doc.recompute()
